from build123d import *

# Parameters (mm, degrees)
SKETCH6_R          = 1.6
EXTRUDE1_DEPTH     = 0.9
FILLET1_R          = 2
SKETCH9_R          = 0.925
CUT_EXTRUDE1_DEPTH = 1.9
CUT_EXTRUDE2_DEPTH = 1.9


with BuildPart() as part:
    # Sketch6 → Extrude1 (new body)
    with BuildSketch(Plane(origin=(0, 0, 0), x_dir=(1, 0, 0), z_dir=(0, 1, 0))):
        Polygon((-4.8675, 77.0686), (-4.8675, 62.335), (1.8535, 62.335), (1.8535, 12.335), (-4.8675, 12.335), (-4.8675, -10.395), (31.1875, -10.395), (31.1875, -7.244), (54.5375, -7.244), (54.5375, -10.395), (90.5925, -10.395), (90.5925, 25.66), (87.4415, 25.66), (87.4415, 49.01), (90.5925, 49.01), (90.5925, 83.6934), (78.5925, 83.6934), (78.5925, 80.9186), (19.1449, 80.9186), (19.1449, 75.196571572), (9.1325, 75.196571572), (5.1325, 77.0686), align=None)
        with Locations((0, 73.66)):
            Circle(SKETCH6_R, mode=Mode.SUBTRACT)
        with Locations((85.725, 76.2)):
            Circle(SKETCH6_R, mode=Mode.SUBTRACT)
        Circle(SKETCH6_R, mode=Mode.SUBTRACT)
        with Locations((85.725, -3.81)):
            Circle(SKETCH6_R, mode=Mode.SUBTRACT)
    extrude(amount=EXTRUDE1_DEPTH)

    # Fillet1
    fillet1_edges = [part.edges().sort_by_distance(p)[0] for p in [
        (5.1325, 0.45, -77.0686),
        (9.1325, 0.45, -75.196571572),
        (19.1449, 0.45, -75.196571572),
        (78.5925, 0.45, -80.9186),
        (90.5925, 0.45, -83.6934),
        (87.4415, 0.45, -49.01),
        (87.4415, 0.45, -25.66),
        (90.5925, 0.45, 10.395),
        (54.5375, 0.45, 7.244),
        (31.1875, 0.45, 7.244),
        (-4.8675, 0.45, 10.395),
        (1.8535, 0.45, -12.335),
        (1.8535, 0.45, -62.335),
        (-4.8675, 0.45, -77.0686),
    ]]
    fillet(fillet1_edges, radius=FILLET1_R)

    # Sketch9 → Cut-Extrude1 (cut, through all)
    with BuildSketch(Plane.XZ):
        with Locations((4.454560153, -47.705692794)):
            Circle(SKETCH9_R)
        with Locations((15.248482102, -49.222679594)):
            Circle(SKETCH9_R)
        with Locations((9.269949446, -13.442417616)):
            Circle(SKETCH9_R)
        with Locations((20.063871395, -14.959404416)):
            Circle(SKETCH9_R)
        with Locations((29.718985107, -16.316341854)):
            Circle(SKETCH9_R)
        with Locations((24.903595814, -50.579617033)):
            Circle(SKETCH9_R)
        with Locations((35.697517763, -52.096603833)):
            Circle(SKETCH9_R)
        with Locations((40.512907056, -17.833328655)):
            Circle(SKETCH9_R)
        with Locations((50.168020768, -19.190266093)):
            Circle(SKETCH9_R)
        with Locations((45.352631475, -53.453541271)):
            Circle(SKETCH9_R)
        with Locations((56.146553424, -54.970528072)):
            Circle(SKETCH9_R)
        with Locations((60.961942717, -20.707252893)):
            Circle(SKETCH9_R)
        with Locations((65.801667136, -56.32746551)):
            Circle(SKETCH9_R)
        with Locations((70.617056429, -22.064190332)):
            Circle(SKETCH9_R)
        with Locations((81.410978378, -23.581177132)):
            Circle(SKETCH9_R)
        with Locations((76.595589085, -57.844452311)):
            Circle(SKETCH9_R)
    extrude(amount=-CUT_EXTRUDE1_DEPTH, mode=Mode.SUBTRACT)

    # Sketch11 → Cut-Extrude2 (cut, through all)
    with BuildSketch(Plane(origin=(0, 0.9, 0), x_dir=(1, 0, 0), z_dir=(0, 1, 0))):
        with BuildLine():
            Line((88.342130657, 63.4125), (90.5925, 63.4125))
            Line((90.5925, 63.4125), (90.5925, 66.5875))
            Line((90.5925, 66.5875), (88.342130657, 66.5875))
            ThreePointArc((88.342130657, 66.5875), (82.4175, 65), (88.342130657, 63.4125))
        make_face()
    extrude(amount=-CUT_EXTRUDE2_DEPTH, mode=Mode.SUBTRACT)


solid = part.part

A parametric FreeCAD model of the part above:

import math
import FreeCAD as App
import Part
import Sketcher
from FreeCAD import Vector
Q = App.Units.Quantity


def edges_at(feature, points):
    """Names of the edges that pass closest to the given points."""
    edges = feature.Shape.Edges
    near = lambda p: min(range(len(edges)), key=lambda i: edges[i].distToShape(Part.Vertex(*p))[0])
    return sorted({f"Edge{near(p) + 1}" for p in points})


def add_polygon(sketch, points):
    """Adds a closed chain of lines whose ends are joined by coincident constraints."""
    first, n = sketch.GeometryCount, len(points)
    for a, b in zip(points, points[1:] + points[:1]):
        sketch.addGeometry(Part.LineSegment(App.Vector(*a, 0), App.Vector(*b, 0)), False)
    for i in range(n):
        sketch.addConstraint(Sketcher.Constraint("Coincident", first + i, 2, first + (i + 1) % n, 1))

doc = App.newDocument("Part")
body = doc.addObject("PartDesign::Body", "Body")

# Sketch on XZ plane
sketch1 = doc.addObject("Sketcher::SketchObject", "Sketch")
body.addObject(sketch1)
sketch1.AttachmentSupport = (doc.XZ_Plane, [""])
sketch1.MapMode = "FlatFace"
add_polygon(sketch1, [(-4.9, -77.1), (-4.9, -62.3), (1.9, -62.3), (1.9, -12.3), (-4.9, -12.3), (-4.9, 10.4), (31.2, 10.4), (31.2, 7.2), (54.5, 7.2), (54.5, 10.4), (90.6, 10.4), (90.6, -25.7), (87.4, -25.7), (87.4, -49), (90.6, -49), (90.6, -83.7), (78.6, -83.7), (78.6, -80.9), (19.1, -80.9), (19.1, -75.2), (9.1, -75.2), (5.1, -77.1)])  # lines 0-21
sketch1.addGeometry(Part.Circle(Vector(0, 0, 0), Vector(0, 0, 1), 1.6), False)  # 22
sketch1.addGeometry(Part.Circle(Vector(85.7, 3.8, 0), Vector(0, 0, 1), 1.6), False)  # 23
sketch1.addGeometry(Part.Circle(Vector(0, -73.7, 0), Vector(0, 0, 1), 1.6), False)  # 24
sketch1.addGeometry(Part.Circle(Vector(85.7, -76.2, 0), Vector(0, 0, 1), 1.6), False)  # 25
sketch1.addConstraint([
    Sketcher.Constraint("Vertical", 0),
    Sketcher.Constraint("Horizontal", 1),
    Sketcher.Constraint("Vertical", 2),
    Sketcher.Constraint("Horizontal", 3),
    Sketcher.Constraint("Vertical", 4),
    Sketcher.Constraint("Horizontal", 5),
    Sketcher.Constraint("Vertical", 6),
    Sketcher.Constraint("Horizontal", 7),
    Sketcher.Constraint("Vertical", 8),
    Sketcher.Constraint("Horizontal", 9),
    Sketcher.Constraint("Vertical", 10),
    Sketcher.Constraint("Horizontal", 11),
    Sketcher.Constraint("Vertical", 12),
    Sketcher.Constraint("Horizontal", 13),
    Sketcher.Constraint("Vertical", 14),
    Sketcher.Constraint("Horizontal", 15),
    Sketcher.Constraint("Vertical", 16),
    Sketcher.Constraint("Horizontal", 17),
    Sketcher.Constraint("Vertical", 18),
    Sketcher.Constraint("Horizontal", 19),
    Sketcher.Constraint("Horizontal", 21),
    Sketcher.Constraint("Coincident", 22, 3, -1, 1),
    Sketcher.Constraint("Equal", 22, 23),
    Sketcher.Constraint("Equal", 23, 24),
    Sketcher.Constraint("Equal", 24, 25),
    Sketcher.Constraint("PointOnObject", 24, 3, -2),
    Sketcher.Constraint("Horizontal", 5, 2, 8, 2),
    Sketcher.Constraint("Vertical", 23, 3, 25, 3),
    Sketcher.Constraint("Vertical", 0, 2, 3, 2),
    Sketcher.Constraint("Vertical", 10, 2, 13, 2),
    Sketcher.Constraint("Equal", 5, 9),
    Sketcher.Constraint("Equal", 13, 6),
    Sketcher.Constraint("Equal", 9, 10),
    Sketcher.Constraint("Equal", 7, 12),
    Sketcher.Constraint("Diameter", 22, Q("3.2 mm")),
    Sketcher.Constraint("DistanceX", 15, 2, 15, 1, Q("12 mm")),
    Sketcher.Constraint("DistanceX", 21, 2, 21, 1, Q("10 mm")),
    Sketcher.Constraint("DistanceY", 2, 1, 2, 2, Q("50 mm")),
    Sketcher.Constraint("DistanceX", 0, 2, 19, 2, Q("14 mm")),
    Sketcher.Constraint("DistanceX", 7, 1, 7, 2, Q("23.35 mm")),
    Sketcher.Constraint("DistanceY", 4, 1, 4, 2, Q("22.73 mm")),
    Sketcher.Constraint("DistanceY", 25, 3, -1, 1, Q("76.2 mm")),
    Sketcher.Constraint("DistanceX", 1, 1, 1, 2, Q("6.721 mm")),
    Sketcher.Constraint("DistanceX", 5, 1, 5, 2, Q("36.055 mm")),
    Sketcher.Constraint("DistanceX", 11, 2, 11, 1, Q("3.151 mm")),
    Sketcher.Constraint("DistanceY", -1, 1, 23, 3, Q("3.81 mm")),
    Sketcher.Constraint("DistanceY", 24, 3, -1, 1, Q("73.66 mm")),
    Sketcher.Constraint("DistanceY", 10, 2, -1, 1, Q("25.66 mm")),
    Sketcher.Constraint("DistanceY", 17, 2, 20, 2, Q("3.85 mm")),
    Sketcher.Constraint("DistanceX", 17, 2, 17, 1, Q("59.4476 mm")),
    Sketcher.Constraint("DistanceY", 0, 1, 0, 2, Q("14.7336 mm")),
    Sketcher.Constraint("DistanceY", 14, 2, 14, 1, Q("34.6834 mm")),
    Sketcher.Constraint("DistanceX", -1, 1, 23, 3, Q("85.725 mm")),
    Sketcher.Constraint("DistanceY", 18, 1, 18, 2, Q("5.722028 mm")),
    Sketcher.Constraint("DistanceX", 0, 2, -1, 1, Q("4.8675 mm")),
])
pad1 = doc.addObject("PartDesign::Pad", "Pad")
body.addObject(pad1)
pad1.Profile = sketch1
pad1.Length = 0.9
pad1.Reversed = True
doc.recompute()

fillet = doc.addObject("PartDesign::Fillet", "Fillet")
body.addObject(fillet)
fillet.Base = (pad1, edges_at(pad1, [
    (5.133, 0.45, -77.069),
    (9.133, 0.45, -75.197),
    (19.145, 0.45, -75.197),
    (78.593, 0.45, -80.919),
    (90.593, 0.45, -83.693),
    (87.442, 0.45, -49.01),
    (87.442, 0.45, -25.66),
    (90.593, 0.45, 10.395),
    (54.538, 0.45, 7.244),
    (31.188, 0.45, 7.244),
    (-4.867, 0.45, 10.395),
    (1.853, 0.45, -12.335),
    (1.853, 0.45, -62.335),
    (-4.867, 0.45, -77.069),
]))
fillet.Radius = 2

# Sketch on XZ plane
sketch2 = doc.addObject("Sketcher::SketchObject", "Sketch001")
body.addObject(sketch2)
sketch2.AttachmentSupport = (doc.XZ_Plane, [""])
sketch2.MapMode = "FlatFace"
sketch2.addGeometry([
    Part.Circle(Vector(4.5, -47.7, 0), Vector(0, 0, 1), 0.9),  # 0
    Part.Circle(Vector(15.2, -49.2, 0), Vector(0, 0, 1), 0.9),  # 1
    Part.Circle(Vector(9.3, -13.4, 0), Vector(0, 0, 1), 0.9),  # 2
    Part.Circle(Vector(20.1, -15, 0), Vector(0, 0, 1), 0.9),  # 3
    Part.Circle(Vector(29.7, -16.3, 0), Vector(0, 0, 1), 0.9),  # 4
    Part.Circle(Vector(24.9, -50.6, 0), Vector(0, 0, 1), 0.9),  # 5
    Part.Circle(Vector(35.7, -52.1, 0), Vector(0, 0, 1), 0.9),  # 6
    Part.Circle(Vector(40.5, -17.8, 0), Vector(0, 0, 1), 0.9),  # 7
    Part.Circle(Vector(50.2, -19.2, 0), Vector(0, 0, 1), 0.9),  # 8
    Part.Circle(Vector(45.4, -53.5, 0), Vector(0, 0, 1), 0.9),  # 9
    Part.Circle(Vector(56.1, -55, 0), Vector(0, 0, 1), 0.9),  # 10
    Part.Circle(Vector(61, -20.7, 0), Vector(0, 0, 1), 0.9),  # 11
    Part.Circle(Vector(65.8, -56.3, 0), Vector(0, 0, 1), 0.9),  # 12
    Part.Circle(Vector(70.6, -22.1, 0), Vector(0, 0, 1), 0.9),  # 13
    Part.Circle(Vector(81.4, -23.6, 0), Vector(0, 0, 1), 0.9),  # 14
    Part.Circle(Vector(76.6, -57.8, 0), Vector(0, 0, 1), 0.9),  # 15
], False)
sketch2.addConstraint([
    Sketcher.Constraint("Equal", 0, 1),
    Sketcher.Constraint("Equal", 1, 2),
    Sketcher.Constraint("Equal", 2, 3),
    Sketcher.Constraint("Equal", 3, 4),
    Sketcher.Constraint("Equal", 4, 5),
    Sketcher.Constraint("Equal", 5, 6),
    Sketcher.Constraint("Equal", 6, 7),
    Sketcher.Constraint("Equal", 7, 8),
    Sketcher.Constraint("Equal", 8, 9),
    Sketcher.Constraint("Equal", 9, 10),
    Sketcher.Constraint("Equal", 10, 11),
    Sketcher.Constraint("Equal", 11, 12),
    Sketcher.Constraint("Equal", 12, 13),
    Sketcher.Constraint("Equal", 13, 14),
    Sketcher.Constraint("Equal", 14, 15),
    Sketcher.Constraint("Diameter", 0, Q("1.85 mm")),
    Sketcher.Constraint("DistanceY", 5, 3, 2, 3, Q("37.137199 mm")),
    Sketcher.Constraint("DistanceY", 6, 3, 3, 3, Q("37.137199 mm")),
    Sketcher.Constraint("DistanceY", 10, 3, 7, 3, Q("37.137199 mm")),
    Sketcher.Constraint("DistanceY", 12, 3, 8, 3, Q("37.137199 mm")),
    Sketcher.Constraint("DistanceX", -1, 1, 0, 3, Q("4.45456 mm")),
    Sketcher.Constraint("DistanceY", 1, 3, -1, 1, Q("49.22268 mm")),
    Sketcher.Constraint("DistanceX", -1, 1, 2, 3, Q("9.269949 mm")),
    Sketcher.Constraint("DistanceX", -1, 1, 3, 3, Q("20.063871 mm")),
    Sketcher.Constraint("DistanceY", 4, 3, -1, 1, Q("16.316342 mm")),
    Sketcher.Constraint("DistanceY", 7, 3, -1, 1, Q("17.833329 mm")),
    Sketcher.Constraint("DistanceX", -1, 1, 8, 3, Q("50.168021 mm")),
    Sketcher.Constraint("DistanceX", -1, 1, 9, 3, Q("45.352631 mm")),
    Sketcher.Constraint("DistanceY", 9, 3, -1, 1, Q("53.453541 mm")),
    Sketcher.Constraint("DistanceY", 13, 3, -1, 1, Q("22.06419 mm")),
    Sketcher.Constraint("DistanceX", -1, 1, 14, 3, Q("81.410978 mm")),
    Sketcher.Constraint("DistanceX", -1, 1, 15, 3, Q("76.595589 mm")),
    Sketcher.Constraint("DistanceX", 0, 3, 1, 3, Q("10.793922 mm")),
    Sketcher.Constraint("DistanceY", 1, 3, 2, 3, Q("35.780262 mm")),
    Sketcher.Constraint("DistanceY", 0, 3, 3, 3, Q("32.746288 mm")),
    Sketcher.Constraint("DistanceY", 0, 3, 4, 3, Q("31.389351 mm")),
    Sketcher.Constraint("DistanceX", 5, 3, 4, 3, Q("4.815389 mm")),
    Sketcher.Constraint("DistanceX", 5, 3, 6, 3, Q("10.793922 mm")),
    Sketcher.Constraint("DistanceX", 4, 3, 7, 3, Q("10.793922 mm")),
    Sketcher.Constraint("DistanceY", 8, 3, 3, 3, Q("4.230862 mm")),
    Sketcher.Constraint("DistanceX", 9, 3, 10, 3, Q("10.793922 mm")),
    Sketcher.Constraint("DistanceX", 8, 3, 11, 3, Q("10.793922 mm")),
    Sketcher.Constraint("DistanceY", 11, 3, 4, 3, Q("4.390911 mm")),
    Sketcher.Constraint("DistanceX", 6, 3, 12, 3, Q("30.104149 mm")),
    Sketcher.Constraint("DistanceX", 7, 3, 13, 3, Q("30.104149 mm")),
    Sketcher.Constraint("DistanceX", 13, 3, 14, 3, Q("10.793922 mm")),
    Sketcher.Constraint("DistanceY", 14, 3, 8, 3, Q("4.390911 mm")),
    Sketcher.Constraint("DistanceY", 15, 3, 9, 3, Q("4.390911 mm")),
])
pocket1 = doc.addObject("PartDesign::Pocket", "Pocket")
body.addObject(pocket1)
pocket1.Profile = sketch2
pocket1.Type = "ThroughAll"

# Sketch on XZ plane
sketch3 = doc.addObject("Sketcher::SketchObject", "Sketch002")
body.addObject(sketch3)
sketch3.AttachmentSupport = (doc.XZ_Plane, [""])
sketch3.MapMode = "FlatFace"
sketch3.AttachmentOffset = App.Placement(Vector(0, 0, -0.9), App.Rotation())
sketch3.addGeometry([
    Part.LineSegment(Vector(88.3, -63.4, 0), Vector(90.6, -63.4, 0)),
    Part.LineSegment(Vector(90.6, -63.4, 0), Vector(90.6, -66.6, 0)),
    Part.LineSegment(Vector(90.6, -66.6, 0), Vector(88.3, -66.6, 0)),
    Part.ArcOfCircle(Part.Circle(Vector(85.6, -65, 0), Vector(0, 0, 1), 3.2), math.radians(30), math.radians(330)),
], False)
sketch3.addConstraint([
    Sketcher.Constraint("Coincident", 0, 2, 1, 1),
    Sketcher.Constraint("Coincident", 1, 2, 2, 1),
    Sketcher.Constraint("Coincident", 2, 2, 3, 2),
    Sketcher.Constraint("Coincident", 3, 1, 0, 1),
    Sketcher.Constraint("Horizontal", 0),
    Sketcher.Constraint("Vertical", 1),
    Sketcher.Constraint("Horizontal", 2),
    Sketcher.Constraint("Vertical", 2, 2, 3, 1),
    Sketcher.Constraint("DistanceY", 3, 3, -1, 1, Q("65 mm")),
    Sketcher.Constraint("Radius", 3, Q("3.175 mm")),
    Sketcher.Constraint("DistanceX", 3, 3, 0, 2, Q("5 mm")),
    Sketcher.Constraint("DistanceY", 1, 2, 1, 1, Q("3.175 mm")),
    Sketcher.Constraint("DistanceX", -1, 1, 3, 3, Q("85.5925 mm")),
])
pocket2 = doc.addObject("PartDesign::Pocket", "Pocket001")
body.addObject(pocket2)
pocket2.Profile = sketch3
pocket2.Type = "ThroughAll"
pocket2.Reversed = True

doc.recompute()
